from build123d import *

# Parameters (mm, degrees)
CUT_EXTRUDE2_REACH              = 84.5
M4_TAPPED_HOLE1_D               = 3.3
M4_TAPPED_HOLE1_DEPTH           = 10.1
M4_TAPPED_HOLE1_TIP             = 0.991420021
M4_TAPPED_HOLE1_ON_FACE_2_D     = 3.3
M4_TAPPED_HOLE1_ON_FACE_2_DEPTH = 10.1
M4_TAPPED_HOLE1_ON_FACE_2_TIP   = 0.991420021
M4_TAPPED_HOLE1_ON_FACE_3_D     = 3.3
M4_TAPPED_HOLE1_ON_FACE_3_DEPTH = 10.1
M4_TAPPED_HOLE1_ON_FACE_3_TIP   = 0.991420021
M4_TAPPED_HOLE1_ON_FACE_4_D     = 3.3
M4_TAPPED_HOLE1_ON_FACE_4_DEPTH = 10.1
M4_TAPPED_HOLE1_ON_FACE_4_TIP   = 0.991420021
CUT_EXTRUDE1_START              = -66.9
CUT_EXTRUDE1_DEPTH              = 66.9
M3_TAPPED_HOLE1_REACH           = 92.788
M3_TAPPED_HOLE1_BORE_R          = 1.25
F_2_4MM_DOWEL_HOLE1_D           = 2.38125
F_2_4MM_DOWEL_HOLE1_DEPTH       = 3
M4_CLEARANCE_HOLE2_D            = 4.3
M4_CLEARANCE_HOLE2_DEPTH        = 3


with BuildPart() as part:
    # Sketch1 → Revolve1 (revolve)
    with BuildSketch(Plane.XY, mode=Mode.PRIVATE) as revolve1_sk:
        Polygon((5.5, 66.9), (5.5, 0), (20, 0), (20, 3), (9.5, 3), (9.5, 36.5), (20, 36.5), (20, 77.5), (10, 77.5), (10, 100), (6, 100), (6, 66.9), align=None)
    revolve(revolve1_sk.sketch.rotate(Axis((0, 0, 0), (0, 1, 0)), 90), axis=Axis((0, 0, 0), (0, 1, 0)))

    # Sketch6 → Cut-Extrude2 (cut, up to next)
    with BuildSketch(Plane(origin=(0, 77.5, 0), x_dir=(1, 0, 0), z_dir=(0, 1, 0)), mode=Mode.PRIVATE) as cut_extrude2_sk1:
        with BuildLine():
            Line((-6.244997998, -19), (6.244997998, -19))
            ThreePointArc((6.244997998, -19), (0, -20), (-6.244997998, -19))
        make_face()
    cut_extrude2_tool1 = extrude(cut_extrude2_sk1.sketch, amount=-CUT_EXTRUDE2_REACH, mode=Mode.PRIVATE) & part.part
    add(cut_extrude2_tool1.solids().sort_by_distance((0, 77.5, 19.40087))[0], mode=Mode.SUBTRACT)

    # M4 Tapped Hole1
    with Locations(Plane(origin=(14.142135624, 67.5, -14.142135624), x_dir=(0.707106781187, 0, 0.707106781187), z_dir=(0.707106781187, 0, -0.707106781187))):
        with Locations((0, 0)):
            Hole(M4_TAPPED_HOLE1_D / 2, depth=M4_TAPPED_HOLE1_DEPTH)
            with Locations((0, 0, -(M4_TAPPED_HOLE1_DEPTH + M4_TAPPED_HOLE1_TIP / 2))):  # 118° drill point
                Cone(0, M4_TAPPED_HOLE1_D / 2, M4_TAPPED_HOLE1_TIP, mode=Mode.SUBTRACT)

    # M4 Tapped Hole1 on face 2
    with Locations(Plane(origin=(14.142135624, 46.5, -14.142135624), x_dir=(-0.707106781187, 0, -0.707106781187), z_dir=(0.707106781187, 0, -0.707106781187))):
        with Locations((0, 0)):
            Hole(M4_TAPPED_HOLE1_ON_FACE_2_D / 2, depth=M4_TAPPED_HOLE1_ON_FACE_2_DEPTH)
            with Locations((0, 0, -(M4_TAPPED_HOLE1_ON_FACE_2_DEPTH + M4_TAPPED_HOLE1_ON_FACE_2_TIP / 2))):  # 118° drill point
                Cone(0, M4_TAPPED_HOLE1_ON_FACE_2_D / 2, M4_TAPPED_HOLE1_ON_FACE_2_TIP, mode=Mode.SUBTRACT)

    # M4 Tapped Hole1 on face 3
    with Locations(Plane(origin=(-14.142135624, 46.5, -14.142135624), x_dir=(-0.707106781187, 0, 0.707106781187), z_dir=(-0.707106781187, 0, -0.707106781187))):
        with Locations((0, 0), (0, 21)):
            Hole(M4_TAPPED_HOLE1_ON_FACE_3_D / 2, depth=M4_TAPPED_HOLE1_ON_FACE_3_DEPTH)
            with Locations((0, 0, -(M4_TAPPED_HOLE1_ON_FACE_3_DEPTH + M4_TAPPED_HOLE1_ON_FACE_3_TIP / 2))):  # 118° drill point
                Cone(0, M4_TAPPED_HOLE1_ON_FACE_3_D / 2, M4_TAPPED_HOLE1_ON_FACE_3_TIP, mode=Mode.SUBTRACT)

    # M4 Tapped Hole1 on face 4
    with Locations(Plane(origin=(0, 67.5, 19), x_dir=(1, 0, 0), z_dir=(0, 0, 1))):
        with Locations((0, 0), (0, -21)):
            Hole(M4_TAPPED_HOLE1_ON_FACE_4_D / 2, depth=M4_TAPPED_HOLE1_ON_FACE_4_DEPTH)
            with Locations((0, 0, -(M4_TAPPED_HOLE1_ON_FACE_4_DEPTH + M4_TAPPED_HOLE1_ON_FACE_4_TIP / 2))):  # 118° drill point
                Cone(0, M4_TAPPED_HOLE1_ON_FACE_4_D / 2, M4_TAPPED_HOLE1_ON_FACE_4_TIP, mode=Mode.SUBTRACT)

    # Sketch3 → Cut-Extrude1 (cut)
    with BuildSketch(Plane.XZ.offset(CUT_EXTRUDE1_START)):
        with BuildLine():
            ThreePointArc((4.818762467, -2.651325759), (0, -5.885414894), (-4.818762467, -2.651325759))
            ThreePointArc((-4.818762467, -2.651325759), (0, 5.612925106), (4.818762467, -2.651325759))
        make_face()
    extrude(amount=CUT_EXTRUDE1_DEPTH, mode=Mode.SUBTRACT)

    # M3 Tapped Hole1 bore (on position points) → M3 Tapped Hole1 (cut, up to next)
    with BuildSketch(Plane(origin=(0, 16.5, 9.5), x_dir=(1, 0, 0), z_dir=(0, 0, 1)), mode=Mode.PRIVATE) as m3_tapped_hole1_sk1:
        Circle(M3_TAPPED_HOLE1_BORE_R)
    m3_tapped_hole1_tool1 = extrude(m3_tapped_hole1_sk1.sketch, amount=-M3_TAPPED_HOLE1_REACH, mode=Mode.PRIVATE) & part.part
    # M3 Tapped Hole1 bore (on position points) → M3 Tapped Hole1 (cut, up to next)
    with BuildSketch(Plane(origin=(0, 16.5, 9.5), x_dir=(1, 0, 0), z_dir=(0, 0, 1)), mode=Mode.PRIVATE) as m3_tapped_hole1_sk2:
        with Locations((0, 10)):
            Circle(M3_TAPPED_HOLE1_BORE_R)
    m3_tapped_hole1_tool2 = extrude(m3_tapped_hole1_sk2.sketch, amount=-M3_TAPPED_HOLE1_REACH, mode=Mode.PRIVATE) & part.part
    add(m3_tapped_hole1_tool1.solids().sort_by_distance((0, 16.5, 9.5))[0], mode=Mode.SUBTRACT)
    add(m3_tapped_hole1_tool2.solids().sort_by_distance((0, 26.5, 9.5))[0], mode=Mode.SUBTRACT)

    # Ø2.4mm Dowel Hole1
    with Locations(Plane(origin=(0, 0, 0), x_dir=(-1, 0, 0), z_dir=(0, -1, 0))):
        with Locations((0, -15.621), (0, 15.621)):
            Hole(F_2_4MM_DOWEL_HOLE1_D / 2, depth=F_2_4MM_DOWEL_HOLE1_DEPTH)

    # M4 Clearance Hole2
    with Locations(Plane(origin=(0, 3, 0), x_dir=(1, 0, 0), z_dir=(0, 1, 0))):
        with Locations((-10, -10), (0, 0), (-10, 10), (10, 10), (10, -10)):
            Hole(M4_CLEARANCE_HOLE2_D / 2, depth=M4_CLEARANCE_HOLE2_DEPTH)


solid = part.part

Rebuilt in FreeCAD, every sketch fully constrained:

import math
import FreeCAD as App
import Part
import Sketcher
from FreeCAD import Vector

doc = App.newDocument("Part")
body = doc.addObject("PartDesign::Body", "Body")

sketch1 = body.newObject("Sketcher::SketchObject", "Sketch")
sketch1.AttachmentSupport = (doc.getObject("XY_Plane"), [""])
sketch1.MapMode = "FlatFace"
sketch1.addGeometry([
    Part.LineSegment(Vector(5.5, 66.9, 0), Vector(5.5, 0, 0)),
    Part.LineSegment(Vector(5.5, 0, 0), Vector(20, 0, 0)),
    Part.LineSegment(Vector(20, 0, 0), Vector(20, 3, 0)),
    Part.LineSegment(Vector(20, 3, 0), Vector(9.5, 3, 0)),
    Part.LineSegment(Vector(9.5, 3, 0), Vector(9.5, 36.5, 0)),
    Part.LineSegment(Vector(9.5, 36.5, 0), Vector(20, 36.5, 0)),
    Part.LineSegment(Vector(20, 36.5, 0), Vector(20, 77.5, 0)),
    Part.LineSegment(Vector(20, 77.5, 0), Vector(10, 77.5, 0)),
    Part.LineSegment(Vector(10, 77.5, 0), Vector(10, 100, 0)),
    Part.LineSegment(Vector(10, 100, 0), Vector(6, 100, 0)),
    Part.LineSegment(Vector(6, 100, 0), Vector(6, 66.9, 0)),
    Part.LineSegment(Vector(6, 66.9, 0), Vector(5.5, 66.9, 0)),
], False)
sketch1.addConstraint([
    Sketcher.Constraint("Coincident", 0, 2, 1, 1),
    Sketcher.Constraint("Coincident", 1, 2, 2, 1),
    Sketcher.Constraint("Coincident", 2, 2, 3, 1),
    Sketcher.Constraint("Coincident", 3, 2, 4, 1),
    Sketcher.Constraint("Coincident", 4, 2, 5, 1),
    Sketcher.Constraint("Coincident", 5, 2, 6, 1),
    Sketcher.Constraint("Coincident", 6, 2, 7, 1),
    Sketcher.Constraint("Coincident", 7, 2, 8, 1),
    Sketcher.Constraint("Coincident", 8, 2, 9, 1),
    Sketcher.Constraint("Coincident", 9, 2, 10, 1),
    Sketcher.Constraint("Coincident", 10, 2, 11, 1),
    Sketcher.Constraint("Coincident", 11, 2, 0, 1),
    Sketcher.Constraint("Vertical", 0),
    Sketcher.Constraint("Horizontal", 1),
    Sketcher.Constraint("Vertical", 2),
    Sketcher.Constraint("Horizontal", 3),
    Sketcher.Constraint("Vertical", 4),
    Sketcher.Constraint("Horizontal", 5),
    Sketcher.Constraint("Vertical", 6),
    Sketcher.Constraint("Horizontal", 7),
    Sketcher.Constraint("Vertical", 8),
    Sketcher.Constraint("Horizontal", 9),
    Sketcher.Constraint("Vertical", 10),
    Sketcher.Constraint("Horizontal", 11),
    Sketcher.Constraint("PointOnObject", 0, 2, -1),
    Sketcher.Constraint("Vertical", 2, 2, 5, 2),
    Sketcher.Constraint("DistanceX", 7, 2, 7, 1, 10.0),
    Sketcher.Constraint("DistanceX", 9, 2, 9, 1, 4.0),
    Sketcher.Constraint("DistanceY", 2, 1, 2, 2, 3.0),
    Sketcher.Constraint("DistanceY", 6, 1, 6, 2, 41.0),
    Sketcher.Constraint("DistanceX", 1, 1, 1, 2, 14.5),
    Sketcher.Constraint("DistanceX", 3, 2, 3, 1, 10.5),
    Sketcher.Constraint("DistanceY", 0, 2, 0, 1, 66.9),
    Sketcher.Constraint("DistanceY", 4, 1, 4, 2, 33.5),
    Sketcher.Constraint("DistanceY", 8, 1, 8, 2, 22.5),
    Sketcher.Constraint("DistanceX", -1, 1, 1, 2, 20.0),
])
revolution = body.newObject("PartDesign::Revolution", "Revolution")
revolution.Profile = sketch1
revolution.ReferenceAxis = (sketch1, ["V_Axis"])
revolution.Angle = 360

sketch2 = body.newObject("Sketcher::SketchObject", "Sketch001")
sketch2.AttachmentSupport = (doc.getObject("XZ_Plane"), [""])
sketch2.MapMode = "FlatFace"
sketch2.AttachmentOffset = App.Placement(Vector(0, 0, -77.5), App.Rotation())
sketch2.addGeometry([
    Part.LineSegment(Vector(6, 19, 0), Vector(-6, 19, 0)),
    Part.ArcOfCircle(Part.Circle(Vector(0, 0, 0), Vector(0, 0, 1), 20), math.radians(72), math.radians(108)),
], False)
sketch2.addConstraint([
    Sketcher.Constraint("Coincident", 0, 1, 1, 1),
    Sketcher.Constraint("Coincident", 1, 2, 0, 2),
    Sketcher.Constraint("Horizontal", 0),
    Sketcher.Constraint("Coincident", 1, 3, -1, 1),
    Sketcher.Constraint("Radius", 1, 20.0),
    Sketcher.Constraint("DistanceY", -1, 1, 0, 1, 19.0),
])
pocket1 = body.newObject("PartDesign::Pocket", "Pocket")
pocket1.Profile = sketch2
pocket1.Type = "UpToFirst"
pocket1.Reversed = True

sketch3 = body.newObject("Sketcher::SketchObject", "Sketch002")
sketch3.Placement = App.Placement(Vector(14.142136, 0, -14.142136), App.Rotation(Vector(0.707106781, 0, 0.707106781), Vector(0, -0.999999999, 0), Vector(0.707106781, 0, -0.707106781), "ZXY"))
sketch3.addGeometry(Part.Circle(Vector(0, -67.5, 0), Vector(0, 0, 1), 1.6), False)
sketch3.addConstraint([
    Sketcher.Constraint("PointOnObject", 0, 3, -2),
    Sketcher.Constraint("Diameter", 0, 3.3),
    Sketcher.Constraint("DistanceY", 0, 3, -1, 1, 67.5),
])
doc.recompute()
hole = body.newObject("PartDesign::Hole", "Hole")
hole.Profile = sketch3
hole.ThreadType = "None"
hole.Diameter = 3.3
hole.DepthType = "Dimension"
hole.Depth = 10.1
hole.DrillPoint = "Angled"
hole.DrillPointAngle = 118

sketch4 = body.newObject("Sketcher::SketchObject", "Sketch003")
sketch4.Placement = App.Placement(Vector(14.142136, 0, -14.142136), App.Rotation(Vector(-0.707106781, 0, -0.707106781), Vector(0, 0.999999999, 0), Vector(0.707106781, 0, -0.707106781), "ZXY"))
sketch4.addGeometry(Part.Circle(Vector(0, 46.5, 0), Vector(0, 0, 1), 1.6), False)
sketch4.addConstraint([
    Sketcher.Constraint("PointOnObject", 0, 3, -2),
    Sketcher.Constraint("Diameter", 0, 3.3),
    Sketcher.Constraint("DistanceY", -1, 1, 0, 3, 46.5),
])
doc.recompute()
hole2 = body.newObject("PartDesign::Hole", "Hole001")
hole2.Profile = sketch4
hole2.ThreadType = "None"
hole2.Diameter = 3.3
hole2.DepthType = "Dimension"
hole2.Depth = 10.1
hole2.DrillPoint = "Angled"
hole2.DrillPointAngle = 118

sketch5 = body.newObject("Sketcher::SketchObject", "Sketch004")
sketch5.Placement = App.Placement(Vector(-14.142136, 0, -14.142136), App.Rotation(Vector(-0.707106781, 0, 0.707106781), Vector(0, 0.999999999, 0), Vector(-0.707106781, 0, -0.707106781), "ZXY"))
sketch5.addGeometry([
    Part.Circle(Vector(0, 46.5, 0), Vector(0, 0, 1), 1.6),
    Part.Circle(Vector(0, 67.5, 0), Vector(0, 0, 1), 1.6),
], False)
sketch5.addConstraint([
    Sketcher.Constraint("Equal", 0, 1),
    Sketcher.Constraint("PointOnObject", 0, 3, -2),
    Sketcher.Constraint("PointOnObject", 1, 3, -2),
    Sketcher.Constraint("Diameter", 0, 3.3),
    Sketcher.Constraint("DistanceY", 0, 3, 1, 3, 21.0),
    Sketcher.Constraint("DistanceY", -1, 1, 0, 3, 46.5),
])
doc.recompute()
hole3 = body.newObject("PartDesign::Hole", "Hole002")
hole3.Profile = sketch5
hole3.ThreadType = "None"
hole3.Diameter = 3.3
hole3.DepthType = "Dimension"
hole3.Depth = 10.1
hole3.DrillPoint = "Angled"
hole3.DrillPointAngle = 118

sketch6 = body.newObject("Sketcher::SketchObject", "Sketch005")
sketch6.AttachmentSupport = (doc.getObject("XY_Plane"), [""])
sketch6.MapMode = "FlatFace"
sketch6.AttachmentOffset = App.Placement(Vector(0, 0, 19), App.Rotation())
sketch6.addGeometry([
    Part.Circle(Vector(0, 67.5, 0), Vector(0, 0, 1), 1.6),
    Part.Circle(Vector(0, 46.5, 0), Vector(0, 0, 1), 1.6),
], False)
sketch6.addConstraint([
    Sketcher.Constraint("Equal", 0, 1),
    Sketcher.Constraint("PointOnObject", 0, 3, -2),
    Sketcher.Constraint("PointOnObject", 1, 3, -2),
    Sketcher.Constraint("Diameter", 0, 3.3),
    Sketcher.Constraint("DistanceY", 1, 3, 0, 3, 21.0),
    Sketcher.Constraint("DistanceY", -1, 1, 0, 3, 67.5),
])
doc.recompute()
hole4 = body.newObject("PartDesign::Hole", "Hole003")
hole4.Profile = sketch6
hole4.ThreadType = "None"
hole4.Diameter = 3.3
hole4.DepthType = "Dimension"
hole4.Depth = 10.1
hole4.DrillPoint = "Angled"
hole4.DrillPointAngle = 118

sketch7 = body.newObject("Sketcher::SketchObject", "Sketch006")
sketch7.AttachmentSupport = (doc.getObject("XZ_Plane"), [""])
sketch7.MapMode = "FlatFace"
sketch7.AttachmentOffset = App.Placement(Vector(0, 0, -66.9), App.Rotation())
sketch7.addGeometry([
    Part.ArcOfCircle(Part.Circle(Vector(0, -1, 0), Vector(0, 0, 1), 5), math.radians(-158), math.radians(-22)),
    Part.ArcOfCircle(Part.Circle(Vector(0, 0, 0), Vector(0, 0, 1), 6), math.radians(-30), math.radians(210)),
], False)
sketch7.addConstraint([
    Sketcher.Constraint("Coincident", 0, 1, 1, 2),
    Sketcher.Constraint("Coincident", 1, 1, 0, 2),
    Sketcher.Constraint("Symmetric", 0, 1, 1, 1, -2),
    Sketcher.Constraint("Radius", 0, 5.207),
    Sketcher.Constraint("Radius", 1, 5.537),
    Sketcher.Constraint("DistanceY", 0, 3, 1, 3, 0.75434),
    Sketcher.Constraint("DistanceY", 0, 3, -1, 1, 0.678415),
])
pocket2 = body.newObject("PartDesign::Pocket", "Pocket001")
pocket2.Profile = sketch7
pocket2.Length = 66.9
pocket2.Reversed = True

sketch8 = body.newObject("Sketcher::SketchObject", "Sketch007")
sketch8.AttachmentSupport = (doc.getObject("XY_Plane"), [""])
sketch8.MapMode = "FlatFace"
sketch8.AttachmentOffset = App.Placement(Vector(0, 0, 9.5), App.Rotation())
sketch8.addGeometry(Part.Circle(Vector(0, 16.5, 0), Vector(0, 0, 1), 1.2), False)
sketch8.addConstraint([
    Sketcher.Constraint("PointOnObject", 0, 3, -2),
    Sketcher.Constraint("Diameter", 0, 2.5),
    Sketcher.Constraint("DistanceY", -1, 1, 0, 3, 16.5),
])
pocket3 = body.newObject("PartDesign::Pocket", "Pocket002")
pocket3.Profile = sketch8
pocket3.Type = "UpToFirst"

sketch9 = body.newObject("Sketcher::SketchObject", "Sketch008")
sketch9.AttachmentSupport = (doc.getObject("XY_Plane"), [""])
sketch9.MapMode = "FlatFace"
sketch9.AttachmentOffset = App.Placement(Vector(0, 0, 9.5), App.Rotation())
sketch9.addGeometry(Part.Circle(Vector(0, 26.5, 0), Vector(0, 0, 1), 1.2), False)
sketch9.addConstraint([
    Sketcher.Constraint("PointOnObject", 0, 3, -2),
    Sketcher.Constraint("Diameter", 0, 2.5),
    Sketcher.Constraint("DistanceY", -1, 1, 0, 3, 26.5),
])
pocket4 = body.newObject("PartDesign::Pocket", "Pocket003")
pocket4.Profile = sketch9
pocket4.Type = "UpToFirst"

sketch10 = body.newObject("Sketcher::SketchObject", "Sketch009")
sketch10.AttachmentSupport = (doc.getObject("XZ_Plane"), [""])
sketch10.MapMode = "FlatFace"
sketch10.addGeometry([
    Part.Circle(Vector(0, 15.6, 0), Vector(0, 0, 1), 1.2),
    Part.Circle(Vector(0, -15.6, 0), Vector(0, 0, 1), 1.2),
], False)
sketch10.addConstraint([
    Sketcher.Constraint("Equal", 0, 1),
    Sketcher.Constraint("Symmetric", 0, 3, 1, 3, -1, 1),
    Sketcher.Constraint("PointOnObject", 0, 3, -2),
    Sketcher.Constraint("Diameter", 0, 2.38125),
    Sketcher.Constraint("DistanceY", -1, 1, 0, 3, 15.621),
])
doc.recompute()
hole5 = body.newObject("PartDesign::Hole", "Hole004")
hole5.Profile = sketch10
hole5.ThreadType = "None"
hole5.Diameter = 2.38125
hole5.DepthType = "Dimension"
hole5.Depth = 3
hole5.DrillPoint = "Flat"

sketch11 = body.newObject("Sketcher::SketchObject", "Sketch010")
sketch11.AttachmentSupport = (doc.getObject("XZ_Plane"), [""])
sketch11.MapMode = "FlatFace"
sketch11.AttachmentOffset = App.Placement(Vector(0, 0, -3), App.Rotation())
sketch11.addGeometry([
    Part.Circle(Vector(-10, 10, 0), Vector(0, 0, 1), 2.1),
    Part.Circle(Vector(0, 0, 0), Vector(0, 0, 1), 2.1),
    Part.Circle(Vector(-10, -10, 0), Vector(0, 0, 1), 2.1),
    Part.Circle(Vector(10, -10, 0), Vector(0, 0, 1), 2.1),
    Part.Circle(Vector(10, 10, 0), Vector(0, 0, 1), 2.1),
], False)
sketch11.addConstraint([
    Sketcher.Constraint("Coincident", 1, 3, -1, 1),
    Sketcher.Constraint("Equal", 0, 1),
    Sketcher.Constraint("Equal", 1, 2),
    Sketcher.Constraint("Equal", 2, 3),
    Sketcher.Constraint("Equal", 3, 4),
    Sketcher.Constraint("Symmetric", 0, 3, 3, 3, -1, 1),
    Sketcher.Constraint("Symmetric", 2, 3, 4, 3, -1, 1),
    Sketcher.Constraint("Symmetric", 2, 3, 3, 3, -2),
    Sketcher.Constraint("Diameter", 0, 4.3),
    Sketcher.Constraint("DistanceX", 0, 3, -1, 1, 10.0),
    Sketcher.Constraint("DistanceY", -1, 1, 0, 3, 10.0),
])
doc.recompute()
hole6 = body.newObject("PartDesign::Hole", "Hole005")
hole6.Profile = sketch11
hole6.ThreadType = "None"
hole6.Diameter = 4.3
hole6.DepthType = "Dimension"
hole6.Depth = 3
hole6.DrillPoint = "Flat"
hole6.Reversed = True

doc.recompute()
